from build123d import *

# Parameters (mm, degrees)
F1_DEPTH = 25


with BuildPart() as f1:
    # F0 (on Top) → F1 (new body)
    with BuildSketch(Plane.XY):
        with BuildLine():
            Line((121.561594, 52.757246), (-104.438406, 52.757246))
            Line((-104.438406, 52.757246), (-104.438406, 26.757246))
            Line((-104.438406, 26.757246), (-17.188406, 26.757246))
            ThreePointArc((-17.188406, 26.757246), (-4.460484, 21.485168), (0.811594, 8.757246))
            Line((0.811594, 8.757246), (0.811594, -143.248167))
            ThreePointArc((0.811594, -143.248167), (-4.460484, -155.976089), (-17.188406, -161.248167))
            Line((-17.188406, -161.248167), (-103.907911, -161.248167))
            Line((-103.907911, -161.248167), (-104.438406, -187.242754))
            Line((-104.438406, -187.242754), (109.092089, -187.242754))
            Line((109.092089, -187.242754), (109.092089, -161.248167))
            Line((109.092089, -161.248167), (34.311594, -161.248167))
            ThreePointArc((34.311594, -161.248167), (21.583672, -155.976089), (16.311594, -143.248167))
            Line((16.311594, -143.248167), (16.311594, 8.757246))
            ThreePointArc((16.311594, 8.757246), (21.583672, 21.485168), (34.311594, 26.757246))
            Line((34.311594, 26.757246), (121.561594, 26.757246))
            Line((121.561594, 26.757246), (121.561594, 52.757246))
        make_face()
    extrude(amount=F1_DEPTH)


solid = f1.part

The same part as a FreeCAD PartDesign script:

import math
import FreeCAD as App
import Part
import Sketcher
from FreeCAD import Vector

doc = App.newDocument("Part")
body = doc.addObject("PartDesign::Body", "Body")

sketch1 = body.newObject("Sketcher::SketchObject", "Sketch")
sketch1.AttachmentSupport = (doc.getObject("XY_Plane"), [""])
sketch1.MapMode = "FlatFace"
sketch1.addGeometry(Part.LineSegment(Vector(122, 53, 0), Vector(-104, 53, 0)), False)
sketch1.addGeometry(Part.LineSegment(Vector(-104, 53, 0), Vector(-104, 27, 0)), False)
sketch1.addGeometry(Part.LineSegment(Vector(-104, 27, 0), Vector(-17, 27, 0)), False)
sketch1.addGeometry(Part.ArcOfCircle(Part.Circle(Vector(-17, 9, 0), Vector(0, 0, 1), 18), math.radians(0), math.radians(90)), False)
sketch1.addGeometry(Part.LineSegment(Vector(1, 9, 0), Vector(1, -143, 0)), False)
sketch1.addGeometry(Part.ArcOfCircle(Part.Circle(Vector(-17, -143, 0), Vector(0, 0, 1), 18), math.radians(-90), math.radians(0)), False)
sketch1.addGeometry(Part.LineSegment(Vector(-17, -161, 0), Vector(-104, -161, 0)), False)
sketch1.addGeometry(Part.LineSegment(Vector(-104, -161, 0), Vector(-104, -187, 0)), False)
sketch1.addGeometry(Part.LineSegment(Vector(-104, -187, 0), Vector(109, -187, 0)), False)
sketch1.addGeometry(Part.LineSegment(Vector(109, -187, 0), Vector(109, -161, 0)), False)
sketch1.addGeometry(Part.LineSegment(Vector(109, -161, 0), Vector(34, -161, 0)), False)
sketch1.addGeometry(Part.ArcOfCircle(Part.Circle(Vector(34, -143, 0), Vector(0, 0, 1), 18), math.radians(-180), math.radians(-90)), False)
sketch1.addGeometry(Part.LineSegment(Vector(16, -143, 0), Vector(16, 9, 0)), False)
sketch1.addGeometry(Part.ArcOfCircle(Part.Circle(Vector(34, 9, 0), Vector(0, 0, 1), 18), math.radians(90), math.radians(180)), False)
sketch1.addGeometry(Part.LineSegment(Vector(34, 27, 0), Vector(122, 27, 0)), False)
sketch1.addGeometry(Part.LineSegment(Vector(122, 27, 0), Vector(122, 53, 0)), False)
sketch1.addConstraint(Sketcher.Constraint("Coincident", 0, 2, 1, 1))
sketch1.addConstraint(Sketcher.Constraint("Coincident", 1, 2, 2, 1))
sketch1.addConstraint(Sketcher.Constraint("Tangent", 2, 2, 3, 2))
sketch1.addConstraint(Sketcher.Constraint("Tangent", 3, 1, 4, 1))
sketch1.addConstraint(Sketcher.Constraint("Tangent", 4, 2, 5, 2))
sketch1.addConstraint(Sketcher.Constraint("Tangent", 5, 1, 6, 1))
sketch1.addConstraint(Sketcher.Constraint("Coincident", 6, 2, 7, 1))
sketch1.addConstraint(Sketcher.Constraint("Coincident", 7, 2, 8, 1))
sketch1.addConstraint(Sketcher.Constraint("Coincident", 8, 2, 9, 1))
sketch1.addConstraint(Sketcher.Constraint("Coincident", 9, 2, 10, 1))
sketch1.addConstraint(Sketcher.Constraint("Tangent", 10, 2, 11, 2))
sketch1.addConstraint(Sketcher.Constraint("Tangent", 11, 1, 12, 1))
sketch1.addConstraint(Sketcher.Constraint("Tangent", 12, 2, 13, 2))
sketch1.addConstraint(Sketcher.Constraint("Tangent", 13, 1, 14, 1))
sketch1.addConstraint(Sketcher.Constraint("Coincident", 14, 2, 15, 1))
sketch1.addConstraint(Sketcher.Constraint("Coincident", 15, 2, 0, 1))
sketch1.addConstraint(Sketcher.Constraint("Horizontal", 0))
sketch1.addConstraint(Sketcher.Constraint("Vertical", 1))
sketch1.addConstraint(Sketcher.Constraint("Horizontal", 2))
sketch1.addConstraint(Sketcher.Constraint("Vertical", 4))
sketch1.addConstraint(Sketcher.Constraint("Horizontal", 6))
sketch1.addConstraint(Sketcher.Constraint("Horizontal", 8))
sketch1.addConstraint(Sketcher.Constraint("Vertical", 9))
sketch1.addConstraint(Sketcher.Constraint("Horizontal", 10))
sketch1.addConstraint(Sketcher.Constraint("Vertical", 12))
sketch1.addConstraint(Sketcher.Constraint("Horizontal", 14))
sketch1.addConstraint(Sketcher.Constraint("Vertical", 15))
sketch1.addConstraint(Sketcher.Constraint("Equal", 3, 5))
sketch1.addConstraint(Sketcher.Constraint("Equal", 5, 11))
sketch1.addConstraint(Sketcher.Constraint("Equal", 11, 13))
sketch1.addConstraint(Sketcher.Constraint("Horizontal", 5, 3, 11, 3))
sketch1.addConstraint(Sketcher.Constraint("Horizontal", 3, 3, 13, 3))
sketch1.addConstraint(Sketcher.Constraint("Vertical", 1, 2, 7, 2))
sketch1.addConstraint(Sketcher.Constraint("Equal", 2, 14))
sketch1.addConstraint(Sketcher.Constraint("Radius", 3, 18.0))
sketch1.addConstraint(Sketcher.Constraint("DistanceX", 0, 2, 0, 1, 226.0))
sketch1.addConstraint(Sketcher.Constraint("DistanceY", 1, 2, 1, 1, 26.0))
sketch1.addConstraint(Sketcher.Constraint("Distance", 7, 26.0))
sketch1.addConstraint(Sketcher.Constraint("DistanceY", 8, 2, 13, 3, 196.0))
sketch1.addConstraint(Sketcher.Constraint("DistanceX", 2, 1, 2, 2, 87.25))
sketch1.addConstraint(Sketcher.Constraint("DistanceX", 6, 2, 6, 1, 86.719505))
sketch1.addConstraint(Sketcher.Constraint("DistanceX", 8, 1, 8, 2, 213.530495))
sketch1.addConstraint(Sketcher.Constraint("DistanceX", 6, 2, -1, 1, 103.907911))
sketch1.addConstraint(Sketcher.Constraint("DistanceY", -1, 1, 3, 3, 8.757246))
pad1 = body.newObject("PartDesign::Pad", "Pad")
pad1.Profile = sketch1
pad1.Length = 25

doc.recompute()
